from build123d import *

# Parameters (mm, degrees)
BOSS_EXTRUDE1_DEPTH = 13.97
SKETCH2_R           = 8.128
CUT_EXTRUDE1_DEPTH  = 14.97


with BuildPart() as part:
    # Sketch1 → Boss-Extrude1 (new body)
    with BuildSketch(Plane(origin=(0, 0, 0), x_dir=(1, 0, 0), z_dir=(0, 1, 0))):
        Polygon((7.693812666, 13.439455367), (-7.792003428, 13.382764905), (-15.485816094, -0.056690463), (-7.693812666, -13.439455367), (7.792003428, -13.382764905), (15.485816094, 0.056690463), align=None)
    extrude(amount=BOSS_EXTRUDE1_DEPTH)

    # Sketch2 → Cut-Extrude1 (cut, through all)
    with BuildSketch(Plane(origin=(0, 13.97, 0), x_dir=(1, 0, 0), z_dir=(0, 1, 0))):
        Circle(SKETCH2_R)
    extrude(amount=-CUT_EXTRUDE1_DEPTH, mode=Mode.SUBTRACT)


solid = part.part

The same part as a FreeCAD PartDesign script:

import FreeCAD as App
import Part
import Sketcher
from FreeCAD import Vector
Q = App.Units.Quantity


def add_polygon(sketch, points):
    """Adds a closed chain of lines whose ends are joined by coincident constraints."""
    first, n = sketch.GeometryCount, len(points)
    for a, b in zip(points, points[1:] + points[:1]):
        sketch.addGeometry(Part.LineSegment(App.Vector(*a, 0), App.Vector(*b, 0)), False)
    for i in range(n):
        sketch.addConstraint(Sketcher.Constraint("Coincident", first + i, 2, first + (i + 1) % n, 1))

doc = App.newDocument("Part")
body = doc.addObject("PartDesign::Body", "Body")

sketch1 = body.newObject("Sketcher::SketchObject", "Sketch")
sketch1.AttachmentSupport = (doc.getObject("XZ_Plane"), [""])
sketch1.MapMode = "FlatFace"
add_polygon(sketch1, [(8, -13), (-8, -13), (-15, 0), (-8, 13), (8, 13), (15, 0)])
sketch1.addConstraint(Sketcher.Constraint("Symmetric", 0, 2, 3, 2, -1, 1))
sketch1.addConstraint(Sketcher.Constraint("Symmetric", 1, 2, 4, 2, -1, 1))
sketch1.addConstraint(Sketcher.Constraint("Symmetric", 2, 2, 5, 2, -1, 1))
sketch1.addConstraint(Sketcher.Constraint("Equal", 0, 1))
sketch1.addConstraint(Sketcher.Constraint("Equal", 1, 2))
sketch1.addConstraint(Sketcher.Constraint("Distance", 0, Q("15.48592 mm")))
sketch1.addConstraint(Sketcher.Constraint("DistanceY", -1, 1, 1, 2, Q("0.05669 mm")))
sketch1.addConstraint(Sketcher.Constraint("DistanceX", 0, 2, 2, 2, Q("0.098191 mm")))
sketch1.addConstraint(Sketcher.Constraint("DistanceY", 0, 2, 2, 2, Q("26.82222 mm")))
pad1 = body.newObject("PartDesign::Pad", "Pad")
pad1.Profile = sketch1
pad1.Length = Q("0.55 in")
pad1.Reversed = True

sketch2 = body.newObject("Sketcher::SketchObject", "Sketch001")
sketch2.AttachmentSupport = (doc.getObject("XZ_Plane"), [""])
sketch2.MapMode = "FlatFace"
sketch2.AttachmentOffset = App.Placement(Vector(0, 0, -0.55 * 25.4), App.Rotation())
sketch2.addGeometry(Part.Circle(Vector(0, 0, 0), Vector(0, 0, 1), 8), False)
sketch2.addConstraint(Sketcher.Constraint("Coincident", 0, 3, -1, 1))
sketch2.addConstraint(Sketcher.Constraint("Diameter", 0, Q("0.64 in")))
pocket1 = body.newObject("PartDesign::Pocket", "Pocket")
pocket1.Profile = sketch2
pocket1.Type = "ThroughAll"
pocket1.Reversed = True

doc.recompute()
